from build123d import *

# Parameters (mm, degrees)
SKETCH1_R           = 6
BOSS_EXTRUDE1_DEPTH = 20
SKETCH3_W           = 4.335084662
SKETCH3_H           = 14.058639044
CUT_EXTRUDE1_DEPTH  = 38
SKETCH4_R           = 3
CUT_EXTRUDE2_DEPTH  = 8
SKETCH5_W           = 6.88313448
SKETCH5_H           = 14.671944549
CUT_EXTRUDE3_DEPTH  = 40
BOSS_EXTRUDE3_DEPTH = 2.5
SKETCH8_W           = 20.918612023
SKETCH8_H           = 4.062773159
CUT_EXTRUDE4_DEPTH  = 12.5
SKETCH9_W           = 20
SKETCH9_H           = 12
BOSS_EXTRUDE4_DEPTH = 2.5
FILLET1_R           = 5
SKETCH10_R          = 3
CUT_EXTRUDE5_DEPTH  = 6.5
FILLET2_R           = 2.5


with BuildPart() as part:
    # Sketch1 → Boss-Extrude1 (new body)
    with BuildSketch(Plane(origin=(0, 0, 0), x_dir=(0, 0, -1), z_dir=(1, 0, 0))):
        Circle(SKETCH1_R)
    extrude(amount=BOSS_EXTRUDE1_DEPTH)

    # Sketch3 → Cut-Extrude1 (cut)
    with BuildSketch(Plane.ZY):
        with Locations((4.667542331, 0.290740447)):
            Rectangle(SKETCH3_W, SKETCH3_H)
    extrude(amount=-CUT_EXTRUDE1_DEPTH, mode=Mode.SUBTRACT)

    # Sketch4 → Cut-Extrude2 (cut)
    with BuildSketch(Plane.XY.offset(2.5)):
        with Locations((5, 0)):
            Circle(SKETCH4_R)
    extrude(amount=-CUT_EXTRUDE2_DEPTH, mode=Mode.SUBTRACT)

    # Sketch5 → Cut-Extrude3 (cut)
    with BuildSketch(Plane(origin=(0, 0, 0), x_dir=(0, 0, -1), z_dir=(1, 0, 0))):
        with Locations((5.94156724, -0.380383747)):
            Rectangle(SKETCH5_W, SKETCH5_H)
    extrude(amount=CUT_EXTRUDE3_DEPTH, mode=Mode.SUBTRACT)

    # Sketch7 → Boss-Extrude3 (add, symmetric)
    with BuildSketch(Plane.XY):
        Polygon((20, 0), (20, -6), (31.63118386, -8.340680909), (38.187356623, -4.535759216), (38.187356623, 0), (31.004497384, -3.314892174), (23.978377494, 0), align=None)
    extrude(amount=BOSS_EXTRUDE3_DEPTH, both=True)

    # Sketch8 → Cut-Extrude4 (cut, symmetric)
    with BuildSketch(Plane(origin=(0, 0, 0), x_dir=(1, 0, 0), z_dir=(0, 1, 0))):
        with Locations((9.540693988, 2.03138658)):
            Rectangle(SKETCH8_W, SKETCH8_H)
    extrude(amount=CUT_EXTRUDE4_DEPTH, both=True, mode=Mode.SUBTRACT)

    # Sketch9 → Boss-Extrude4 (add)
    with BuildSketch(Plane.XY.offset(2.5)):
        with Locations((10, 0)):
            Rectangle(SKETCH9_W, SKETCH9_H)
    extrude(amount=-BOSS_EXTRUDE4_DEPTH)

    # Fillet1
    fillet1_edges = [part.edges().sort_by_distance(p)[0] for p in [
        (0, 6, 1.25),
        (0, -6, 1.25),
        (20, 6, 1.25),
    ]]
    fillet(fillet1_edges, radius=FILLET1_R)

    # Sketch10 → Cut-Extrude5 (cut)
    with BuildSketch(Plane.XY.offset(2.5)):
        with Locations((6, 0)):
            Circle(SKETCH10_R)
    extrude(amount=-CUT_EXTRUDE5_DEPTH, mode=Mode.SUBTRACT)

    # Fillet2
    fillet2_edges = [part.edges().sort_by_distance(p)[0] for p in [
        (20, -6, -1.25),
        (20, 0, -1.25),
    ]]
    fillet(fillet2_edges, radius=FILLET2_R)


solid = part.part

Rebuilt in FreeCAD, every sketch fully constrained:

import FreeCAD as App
import Part
import Sketcher

V = App.Vector
Q = App.Units.Quantity


def edges_at(feature, points):
    """Names of the edges that pass closest to the given points."""
    edges = feature.Shape.Edges
    near = lambda p: min(range(len(edges)), key=lambda i: edges[i].distToShape(Part.Vertex(*p))[0])
    return sorted({f"Edge{near(p) + 1}" for p in points})


def add_polygon(sketch, points):
    """Adds a closed chain of lines whose ends are joined by coincident constraints."""
    first, n = sketch.GeometryCount, len(points)
    for a, b in zip(points, points[1:] + points[:1]):
        sketch.addGeometry(Part.LineSegment(App.Vector(*a, 0), App.Vector(*b, 0)), False)
    for i in range(n):
        sketch.addConstraint(Sketcher.Constraint("Coincident", first + i, 2, first + (i + 1) % n, 1))

doc = App.newDocument("Part")
body = doc.addObject("PartDesign::Body", "Body")

# Sketch on YZ plane
sketch1 = body.newObject("Sketcher::SketchObject", "Sketch")
sketch1.AttachmentSupport = (doc.getObject("YZ_Plane"), [""])
sketch1.MapMode = "FlatFace"
sketch1.addGeometry(Part.Circle(V(0, 0, 0), V(0, 0, 1), 6), False)
sketch1.addConstraint([
    Sketcher.Constraint("Coincident", 0, 3, -1, 1),
    Sketcher.Constraint("Diameter", 0, Q("12 mm")),
])
pad1 = body.newObject("PartDesign::Pad", "Pad")
pad1.Profile = sketch1
pad1.Length = 20

# Sketch on YZ plane
sketch2 = body.newObject("Sketcher::SketchObject", "Sketch001")
sketch2.AttachmentSupport = (doc.getObject("YZ_Plane"), [""])
sketch2.MapMode = "FlatFace"
add_polygon(sketch2, [(7.3, 2.5), (-6.7, 2.5), (-6.7, 6.8), (7.3, 6.8)])  # lines 0-3
sketch2.addConstraint([
    Sketcher.Constraint("Horizontal", 0),
    Sketcher.Constraint("Vertical", 1),
    Sketcher.Constraint("Horizontal", 2),
    Sketcher.Constraint("Vertical", 3),
    Sketcher.Constraint("DistanceY", -1, 1, 0, 2, Q("2.5 mm")),
    Sketcher.Constraint("DistanceX", 0, 2, 0, 1, Q("14.058639 mm")),
    Sketcher.Constraint("DistanceY", 1, 1, 1, 2, Q("4.335085 mm")),
    Sketcher.Constraint("DistanceX", 0, 2, -1, 1, Q("6.738579 mm")),
])
pocket1 = body.newObject("PartDesign::Pocket", "Pocket")
pocket1.Profile = sketch2
pocket1.Length = 38
pocket1.Reversed = True

# Sketch on XY plane
sketch3 = body.newObject("Sketcher::SketchObject", "Sketch002")
sketch3.AttachmentSupport = (doc.getObject("XY_Plane"), [""])
sketch3.MapMode = "FlatFace"
sketch3.AttachmentOffset = App.Placement(V(0, 0, 2.5), App.Rotation())
sketch3.addGeometry(Part.Circle(V(5, 0, 0), V(0, 0, 1), 3), False)
sketch3.addConstraint([
    Sketcher.Constraint("PointOnObject", 0, 3, -1),
    Sketcher.Constraint("Diameter", 0, Q("6 mm")),
    Sketcher.Constraint("DistanceX", -1, 1, 0, 3, Q("5 mm")),
])
pocket2 = body.newObject("PartDesign::Pocket", "Pocket001")
pocket2.Profile = sketch3
pocket2.Length = 8

# Sketch on YZ plane
sketch4 = body.newObject("Sketcher::SketchObject", "Sketch003")
sketch4.AttachmentSupport = (doc.getObject("YZ_Plane"), [""])
sketch4.MapMode = "FlatFace"
add_polygon(sketch4, [(7, -2), (-8, -2), (-8, -9), (7, -9)])  # lines 0-3
sketch4.addConstraint([
    Sketcher.Constraint("Horizontal", 0),
    Sketcher.Constraint("Vertical", 1),
    Sketcher.Constraint("Horizontal", 2),
    Sketcher.Constraint("Vertical", 3),
    Sketcher.Constraint("DistanceY", 0, 2, -1, 1, Q("2.5 mm")),
    Sketcher.Constraint("DistanceX", 0, 2, 0, 1, Q("14.671945 mm")),
    Sketcher.Constraint("DistanceY", 1, 2, 1, 1, Q("6.883134 mm")),
    Sketcher.Constraint("DistanceX", -1, 1, 2, 2, Q("6.955589 mm")),
])
pocket3 = body.newObject("PartDesign::Pocket", "Pocket002")
pocket3.Profile = sketch4
pocket3.Length = 40
pocket3.Reversed = True

# Sketch on XY plane
sketch5 = body.newObject("Sketcher::SketchObject", "Sketch004")
sketch5.AttachmentSupport = (doc.getObject("XY_Plane"), [""])
sketch5.MapMode = "FlatFace"
add_polygon(sketch5, [(20, 0), (20, -6), (31.6, -8.3), (38.2, -4.5), (38.2, 0), (31, -3.3), (24, 0)])  # lines 0-6
sketch5.addConstraint([
    Sketcher.Constraint("Vertical", 0),
    Sketcher.Constraint("Vertical", 3),
    Sketcher.Constraint("Horizontal", 6),
    Sketcher.Constraint("PointOnObject", 3, 2, -1),
    Sketcher.Constraint("PointOnObject", 5, 2, -1),
    Sketcher.Constraint("DistanceY", 0, 2, 0, 1, Q("6 mm")),
    Sketcher.Constraint("DistanceX", -1, 1, 0, 2, Q("20 mm")),
    Sketcher.Constraint("DistanceY", 3, 1, 3, 2, Q("4.535759 mm")),
    Sketcher.Constraint("Distance", 5, Q("7.76884 mm")),
    Sketcher.Constraint("DistanceX", 6, 2, 6, 1, Q("3.978377 mm")),
    Sketcher.Constraint("DistanceY", 1, 2, -1, 1, Q("8.340681 mm")),
    Sketcher.Constraint("DistanceY", 1, 2, 4, 2, Q("5.025789 mm")),
    Sketcher.Constraint("DistanceX", 4, 2, 2, 2, Q("7.182859 mm")),
    Sketcher.Constraint("Distance", 1, Q("11.864368 mm")),
])
pad2 = body.newObject("PartDesign::Pad", "Pad001")
pad2.Profile = sketch5
pad2.Length = 5
pad2.Midplane = True

# Sketch on XZ plane
sketch6 = body.newObject("Sketcher::SketchObject", "Sketch005")
sketch6.AttachmentSupport = (doc.getObject("XZ_Plane"), [""])
sketch6.MapMode = "FlatFace"
add_polygon(sketch6, [(-0.9, -4.1), (-0.9, 0), (20, 0), (20, -4.1)])  # lines 0-3
sketch6.addConstraint([
    Sketcher.Constraint("Vertical", 0),
    Sketcher.Constraint("Horizontal", 1),
    Sketcher.Constraint("Vertical", 2),
    Sketcher.Constraint("Horizontal", 3),
    Sketcher.Constraint("PointOnObject", 0, 2, -1),
    Sketcher.Constraint("DistanceX", -1, 1, 1, 2, Q("20 mm")),
    Sketcher.Constraint("DistanceX", 1, 1, 1, 2, Q("20.918612 mm")),
    Sketcher.Constraint("DistanceY", 0, 1, 0, 2, Q("4.062773 mm")),
])
pocket4 = body.newObject("PartDesign::Pocket", "Pocket003")
pocket4.Profile = sketch6
pocket4.Length = 25
pocket4.Midplane = True

# Sketch on XY plane
sketch7 = body.newObject("Sketcher::SketchObject", "Sketch006")
sketch7.AttachmentSupport = (doc.getObject("XY_Plane"), [""])
sketch7.MapMode = "FlatFace"
sketch7.AttachmentOffset = App.Placement(V(0, 0, 2.5), App.Rotation())
add_polygon(sketch7, [(0, 6), (0, -6), (20, -6), (20, 6)])  # lines 0-3
sketch7.addConstraint([
    Sketcher.Constraint("Vertical", 0),
    Sketcher.Constraint("Horizontal", 1),
    Sketcher.Constraint("Vertical", 2),
    Sketcher.Constraint("Horizontal", 3),
    Sketcher.Constraint("Symmetric", 0, 2, 3, 2, -1, 1),
    Sketcher.Constraint("DistanceX", 1, 1, 1, 2, Q("20 mm")),
    Sketcher.Constraint("DistanceY", 0, 2, 0, 1, Q("12 mm")),
])
pad3 = body.newObject("PartDesign::Pad", "Pad002")
pad3.Profile = sketch7
pad3.Length = 2.5
pad3.Reversed = True
doc.recompute()

fillet = body.newObject("PartDesign::Fillet", "Fillet")
fillet.Base = (pad3, edges_at(pad3, [(0, 6, 1.25), (0, -6, 1.25), (20, 6, 1.25)]))
fillet.Radius = 5

# Sketch on XY plane
sketch8 = body.newObject("Sketcher::SketchObject", "Sketch007")
sketch8.AttachmentSupport = (doc.getObject("XY_Plane"), [""])
sketch8.MapMode = "FlatFace"
sketch8.AttachmentOffset = App.Placement(V(0, 0, 2.5), App.Rotation())
sketch8.addGeometry(Part.Circle(V(6, 0, 0), V(0, 0, 1), 3), False)
sketch8.addConstraint([
    Sketcher.Constraint("PointOnObject", 0, 3, -1),
    Sketcher.Constraint("Diameter", 0, Q("6 mm")),
    Sketcher.Constraint("DistanceX", -1, 1, 0, 3, Q("6 mm")),
])
pocket5 = body.newObject("PartDesign::Pocket", "Pocket004")
pocket5.Profile = sketch8
pocket5.Length = 6.5
doc.recompute()

fillet2 = body.newObject("PartDesign::Fillet", "Fillet001")
fillet2.Base = (pocket5, edges_at(pocket5, [(20, -6, -1.25), (20, 0, -1.25)]))
fillet2.Radius = 2.5

doc.recompute()
